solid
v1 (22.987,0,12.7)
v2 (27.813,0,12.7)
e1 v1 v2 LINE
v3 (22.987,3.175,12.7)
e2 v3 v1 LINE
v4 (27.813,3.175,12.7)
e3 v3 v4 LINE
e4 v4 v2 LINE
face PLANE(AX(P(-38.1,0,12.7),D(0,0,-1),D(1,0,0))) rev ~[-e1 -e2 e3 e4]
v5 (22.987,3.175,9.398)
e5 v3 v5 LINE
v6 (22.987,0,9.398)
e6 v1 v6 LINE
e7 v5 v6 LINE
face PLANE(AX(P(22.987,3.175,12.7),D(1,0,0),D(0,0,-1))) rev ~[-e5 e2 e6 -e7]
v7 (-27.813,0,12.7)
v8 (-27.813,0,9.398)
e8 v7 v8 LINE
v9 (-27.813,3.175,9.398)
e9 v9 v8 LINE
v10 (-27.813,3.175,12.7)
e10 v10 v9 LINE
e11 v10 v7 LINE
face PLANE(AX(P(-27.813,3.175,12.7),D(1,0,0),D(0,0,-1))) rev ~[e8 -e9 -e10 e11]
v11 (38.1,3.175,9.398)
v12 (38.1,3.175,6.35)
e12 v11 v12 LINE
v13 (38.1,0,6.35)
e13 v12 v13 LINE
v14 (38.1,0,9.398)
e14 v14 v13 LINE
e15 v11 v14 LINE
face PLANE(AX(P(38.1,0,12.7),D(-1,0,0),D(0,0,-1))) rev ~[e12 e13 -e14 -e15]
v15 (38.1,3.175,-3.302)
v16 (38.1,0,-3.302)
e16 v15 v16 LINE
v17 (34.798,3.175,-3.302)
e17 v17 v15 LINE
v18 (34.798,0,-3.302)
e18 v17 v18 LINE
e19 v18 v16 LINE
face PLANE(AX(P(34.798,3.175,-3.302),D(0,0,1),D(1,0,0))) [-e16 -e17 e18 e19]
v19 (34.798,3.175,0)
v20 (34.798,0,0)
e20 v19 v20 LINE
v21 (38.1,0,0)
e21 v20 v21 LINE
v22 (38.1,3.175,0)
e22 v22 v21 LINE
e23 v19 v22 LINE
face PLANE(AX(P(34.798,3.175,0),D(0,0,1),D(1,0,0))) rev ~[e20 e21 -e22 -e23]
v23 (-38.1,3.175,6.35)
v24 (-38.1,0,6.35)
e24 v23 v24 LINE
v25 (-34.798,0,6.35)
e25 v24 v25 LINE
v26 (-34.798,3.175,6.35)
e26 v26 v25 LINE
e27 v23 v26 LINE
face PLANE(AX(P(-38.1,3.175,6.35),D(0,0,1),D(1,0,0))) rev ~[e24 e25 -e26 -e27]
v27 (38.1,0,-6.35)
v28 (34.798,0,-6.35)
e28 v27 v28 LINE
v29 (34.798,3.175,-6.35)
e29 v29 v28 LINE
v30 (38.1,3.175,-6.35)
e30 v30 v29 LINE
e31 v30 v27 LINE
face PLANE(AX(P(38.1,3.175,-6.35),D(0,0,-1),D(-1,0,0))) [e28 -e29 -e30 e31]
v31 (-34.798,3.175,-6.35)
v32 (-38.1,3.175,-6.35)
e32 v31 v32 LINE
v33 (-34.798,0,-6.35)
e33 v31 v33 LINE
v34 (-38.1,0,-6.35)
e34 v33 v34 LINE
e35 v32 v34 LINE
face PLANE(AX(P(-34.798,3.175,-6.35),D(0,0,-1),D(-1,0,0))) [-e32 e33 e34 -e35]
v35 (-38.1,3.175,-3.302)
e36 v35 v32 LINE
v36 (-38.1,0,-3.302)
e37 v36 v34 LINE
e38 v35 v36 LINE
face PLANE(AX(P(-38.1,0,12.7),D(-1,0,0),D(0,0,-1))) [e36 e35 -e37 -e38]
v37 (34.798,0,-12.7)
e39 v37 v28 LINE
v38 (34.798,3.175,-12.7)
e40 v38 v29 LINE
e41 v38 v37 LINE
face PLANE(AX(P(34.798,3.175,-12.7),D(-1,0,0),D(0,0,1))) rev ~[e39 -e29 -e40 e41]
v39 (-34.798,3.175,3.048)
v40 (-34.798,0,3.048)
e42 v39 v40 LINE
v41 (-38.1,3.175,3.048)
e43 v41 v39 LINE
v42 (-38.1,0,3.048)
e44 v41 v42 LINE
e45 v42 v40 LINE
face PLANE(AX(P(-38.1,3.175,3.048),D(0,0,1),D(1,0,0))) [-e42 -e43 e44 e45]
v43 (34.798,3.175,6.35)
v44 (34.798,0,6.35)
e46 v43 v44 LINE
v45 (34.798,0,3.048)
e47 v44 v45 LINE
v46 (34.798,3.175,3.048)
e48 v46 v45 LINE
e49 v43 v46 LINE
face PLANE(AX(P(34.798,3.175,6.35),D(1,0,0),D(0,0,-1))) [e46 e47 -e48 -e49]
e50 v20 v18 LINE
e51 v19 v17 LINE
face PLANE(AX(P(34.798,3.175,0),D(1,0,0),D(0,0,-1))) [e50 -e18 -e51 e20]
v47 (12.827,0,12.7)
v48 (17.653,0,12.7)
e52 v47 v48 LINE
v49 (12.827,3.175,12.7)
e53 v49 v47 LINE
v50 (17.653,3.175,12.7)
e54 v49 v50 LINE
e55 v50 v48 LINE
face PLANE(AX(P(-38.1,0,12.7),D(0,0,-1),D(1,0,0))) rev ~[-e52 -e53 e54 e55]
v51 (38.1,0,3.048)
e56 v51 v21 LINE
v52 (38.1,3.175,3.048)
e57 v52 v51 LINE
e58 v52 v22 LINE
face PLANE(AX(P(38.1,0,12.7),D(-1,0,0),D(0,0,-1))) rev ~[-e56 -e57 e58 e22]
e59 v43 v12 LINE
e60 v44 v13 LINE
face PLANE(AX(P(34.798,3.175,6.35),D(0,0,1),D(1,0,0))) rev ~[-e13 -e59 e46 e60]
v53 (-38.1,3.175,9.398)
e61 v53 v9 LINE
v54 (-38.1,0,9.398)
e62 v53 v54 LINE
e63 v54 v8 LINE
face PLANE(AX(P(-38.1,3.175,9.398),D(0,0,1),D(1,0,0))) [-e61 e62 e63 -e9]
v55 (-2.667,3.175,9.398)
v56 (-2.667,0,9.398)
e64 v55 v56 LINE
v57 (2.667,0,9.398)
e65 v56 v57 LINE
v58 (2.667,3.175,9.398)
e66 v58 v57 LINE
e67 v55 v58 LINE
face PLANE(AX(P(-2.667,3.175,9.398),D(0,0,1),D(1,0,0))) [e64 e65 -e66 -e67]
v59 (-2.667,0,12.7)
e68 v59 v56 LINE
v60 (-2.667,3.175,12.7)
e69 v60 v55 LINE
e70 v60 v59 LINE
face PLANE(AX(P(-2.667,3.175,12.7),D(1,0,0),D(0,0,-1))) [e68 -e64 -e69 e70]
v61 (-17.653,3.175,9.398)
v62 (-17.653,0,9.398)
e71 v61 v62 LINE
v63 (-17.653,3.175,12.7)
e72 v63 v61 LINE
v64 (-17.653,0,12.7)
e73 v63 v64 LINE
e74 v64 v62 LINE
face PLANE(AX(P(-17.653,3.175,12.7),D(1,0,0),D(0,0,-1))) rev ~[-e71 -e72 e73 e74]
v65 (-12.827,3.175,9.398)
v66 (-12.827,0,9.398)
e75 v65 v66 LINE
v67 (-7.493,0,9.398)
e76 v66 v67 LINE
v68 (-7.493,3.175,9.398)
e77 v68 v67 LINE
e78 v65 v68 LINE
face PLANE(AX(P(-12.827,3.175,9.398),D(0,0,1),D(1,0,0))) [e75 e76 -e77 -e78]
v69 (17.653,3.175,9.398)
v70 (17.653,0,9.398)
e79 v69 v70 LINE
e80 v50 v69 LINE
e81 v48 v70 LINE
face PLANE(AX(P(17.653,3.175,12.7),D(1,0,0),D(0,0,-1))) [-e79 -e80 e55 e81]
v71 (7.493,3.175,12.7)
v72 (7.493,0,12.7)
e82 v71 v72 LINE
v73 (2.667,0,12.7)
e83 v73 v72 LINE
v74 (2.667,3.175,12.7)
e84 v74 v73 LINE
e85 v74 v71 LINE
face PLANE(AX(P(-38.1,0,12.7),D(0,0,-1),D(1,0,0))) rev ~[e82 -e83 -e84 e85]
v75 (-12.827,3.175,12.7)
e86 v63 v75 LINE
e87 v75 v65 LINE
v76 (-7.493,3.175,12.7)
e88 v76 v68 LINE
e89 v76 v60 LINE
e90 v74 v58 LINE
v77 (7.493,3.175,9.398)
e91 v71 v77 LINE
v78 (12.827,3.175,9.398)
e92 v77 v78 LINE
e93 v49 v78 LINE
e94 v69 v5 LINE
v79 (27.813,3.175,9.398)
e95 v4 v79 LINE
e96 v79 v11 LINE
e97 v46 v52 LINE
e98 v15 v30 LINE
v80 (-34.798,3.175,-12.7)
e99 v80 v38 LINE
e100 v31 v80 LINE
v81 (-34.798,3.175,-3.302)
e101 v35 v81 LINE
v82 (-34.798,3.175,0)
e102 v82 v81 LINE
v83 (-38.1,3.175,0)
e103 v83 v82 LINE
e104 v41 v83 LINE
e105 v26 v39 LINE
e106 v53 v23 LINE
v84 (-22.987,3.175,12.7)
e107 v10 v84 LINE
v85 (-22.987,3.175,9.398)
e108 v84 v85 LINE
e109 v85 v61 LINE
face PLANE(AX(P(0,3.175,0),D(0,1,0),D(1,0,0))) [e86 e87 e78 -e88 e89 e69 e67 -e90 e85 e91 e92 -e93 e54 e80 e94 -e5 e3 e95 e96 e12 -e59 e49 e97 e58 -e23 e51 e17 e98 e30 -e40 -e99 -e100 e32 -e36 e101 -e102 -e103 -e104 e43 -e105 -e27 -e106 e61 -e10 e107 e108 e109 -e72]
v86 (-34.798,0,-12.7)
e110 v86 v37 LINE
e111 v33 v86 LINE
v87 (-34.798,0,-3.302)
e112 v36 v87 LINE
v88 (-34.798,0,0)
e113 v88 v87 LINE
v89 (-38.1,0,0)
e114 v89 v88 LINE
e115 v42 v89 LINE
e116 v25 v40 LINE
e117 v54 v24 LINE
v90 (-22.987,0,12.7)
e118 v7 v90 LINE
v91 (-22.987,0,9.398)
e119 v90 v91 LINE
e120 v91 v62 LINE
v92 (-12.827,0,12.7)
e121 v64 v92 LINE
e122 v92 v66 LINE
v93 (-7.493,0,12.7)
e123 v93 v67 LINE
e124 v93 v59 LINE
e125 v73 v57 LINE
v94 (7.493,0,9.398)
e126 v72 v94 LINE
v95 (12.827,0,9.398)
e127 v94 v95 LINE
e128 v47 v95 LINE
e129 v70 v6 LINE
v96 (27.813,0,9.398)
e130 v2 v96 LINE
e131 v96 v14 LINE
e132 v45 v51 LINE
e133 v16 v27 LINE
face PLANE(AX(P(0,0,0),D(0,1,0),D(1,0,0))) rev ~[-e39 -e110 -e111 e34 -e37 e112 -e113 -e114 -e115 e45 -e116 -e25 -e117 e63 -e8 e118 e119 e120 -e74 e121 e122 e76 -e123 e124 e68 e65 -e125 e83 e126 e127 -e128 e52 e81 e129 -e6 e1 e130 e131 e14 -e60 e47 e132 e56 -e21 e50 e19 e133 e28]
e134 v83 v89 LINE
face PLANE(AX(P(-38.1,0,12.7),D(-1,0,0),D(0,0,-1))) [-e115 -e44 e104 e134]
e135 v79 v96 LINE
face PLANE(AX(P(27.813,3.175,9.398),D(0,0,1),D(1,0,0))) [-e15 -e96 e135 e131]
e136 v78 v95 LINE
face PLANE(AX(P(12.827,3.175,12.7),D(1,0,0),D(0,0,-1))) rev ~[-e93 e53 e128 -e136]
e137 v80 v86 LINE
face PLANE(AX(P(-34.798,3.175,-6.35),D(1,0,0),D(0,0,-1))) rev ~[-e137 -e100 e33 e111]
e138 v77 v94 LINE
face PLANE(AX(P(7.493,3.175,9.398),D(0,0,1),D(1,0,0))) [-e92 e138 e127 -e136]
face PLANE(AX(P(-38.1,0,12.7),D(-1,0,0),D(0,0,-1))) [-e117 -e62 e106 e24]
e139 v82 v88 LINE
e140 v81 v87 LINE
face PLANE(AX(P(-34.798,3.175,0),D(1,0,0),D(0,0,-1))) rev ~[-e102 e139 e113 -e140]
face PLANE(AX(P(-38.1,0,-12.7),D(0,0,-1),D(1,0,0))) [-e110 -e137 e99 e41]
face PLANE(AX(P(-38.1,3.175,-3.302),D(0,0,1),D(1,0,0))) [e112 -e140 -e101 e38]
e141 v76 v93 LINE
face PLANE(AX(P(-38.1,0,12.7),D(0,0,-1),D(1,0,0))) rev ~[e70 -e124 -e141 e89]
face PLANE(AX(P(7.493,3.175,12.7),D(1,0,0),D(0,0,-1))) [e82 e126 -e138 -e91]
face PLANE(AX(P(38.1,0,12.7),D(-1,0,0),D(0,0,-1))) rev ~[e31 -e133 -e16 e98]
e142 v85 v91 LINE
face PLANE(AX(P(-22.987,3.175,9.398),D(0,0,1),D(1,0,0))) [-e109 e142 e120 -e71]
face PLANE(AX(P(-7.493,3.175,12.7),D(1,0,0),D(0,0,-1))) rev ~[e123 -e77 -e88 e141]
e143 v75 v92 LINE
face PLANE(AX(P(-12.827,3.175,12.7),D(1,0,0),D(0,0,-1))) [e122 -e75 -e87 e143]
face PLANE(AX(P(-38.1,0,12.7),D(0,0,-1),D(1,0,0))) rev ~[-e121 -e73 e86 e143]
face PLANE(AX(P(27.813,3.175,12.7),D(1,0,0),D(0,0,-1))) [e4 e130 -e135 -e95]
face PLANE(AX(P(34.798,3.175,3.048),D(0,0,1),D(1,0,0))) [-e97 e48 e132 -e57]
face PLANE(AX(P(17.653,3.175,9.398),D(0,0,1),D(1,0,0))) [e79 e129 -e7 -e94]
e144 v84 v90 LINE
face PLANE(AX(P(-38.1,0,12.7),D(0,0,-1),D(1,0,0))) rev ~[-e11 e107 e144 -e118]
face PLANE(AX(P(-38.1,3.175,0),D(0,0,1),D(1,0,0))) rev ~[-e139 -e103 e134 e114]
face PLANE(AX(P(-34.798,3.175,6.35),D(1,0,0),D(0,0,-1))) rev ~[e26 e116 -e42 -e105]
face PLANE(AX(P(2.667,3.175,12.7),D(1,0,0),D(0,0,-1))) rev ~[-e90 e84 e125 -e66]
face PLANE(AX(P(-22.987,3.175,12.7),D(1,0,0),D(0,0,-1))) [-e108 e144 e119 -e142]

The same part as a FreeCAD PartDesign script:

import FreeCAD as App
import Part
import Sketcher
Q = App.Units.Quantity


def add_polygon(sketch, points):
    """Adds a closed chain of lines whose ends are joined by coincident constraints."""
    first, n = sketch.GeometryCount, len(points)
    for a, b in zip(points, points[1:] + points[:1]):
        sketch.addGeometry(Part.LineSegment(App.Vector(*a, 0), App.Vector(*b, 0)), False)
    for i in range(n):
        sketch.addConstraint(Sketcher.Constraint("Coincident", first + i, 2, first + (i + 1) % n, 1))

doc = App.newDocument("Part")
body = doc.addObject("PartDesign::Body", "Body")

# Sketch on XZ plane
sketch1 = body.newObject("Sketcher::SketchObject", "Sketch")
sketch1.AttachmentSupport = (doc.getObject("XZ_Plane"), [""])
sketch1.MapMode = "FlatFace"
add_polygon(sketch1, [(-38, -13), (-38, 13), (38, 13), (38, -13)])  # lines 0-3
sketch1.addConstraint([
    Sketcher.Constraint("Vertical", 0),
    Sketcher.Constraint("Horizontal", 1),
    Sketcher.Constraint("Vertical", 2),
    Sketcher.Constraint("Horizontal", 3),
    Sketcher.Constraint("Symmetric", 0, 2, 2, 2, -1, 1),
    Sketcher.Constraint("DistanceX", 1, 1, 1, 2, Q("3 in")),
    Sketcher.Constraint("DistanceY", 0, 1, 0, 2, Q("1 in")),
])
pad1 = body.newObject("PartDesign::Pad", "Pad")
pad1.Profile = sketch1
pad1.Length = Q("0.125 in")
pad1.Reversed = True

# Sketch on XZ plane
sketch2 = body.newObject("Sketcher::SketchObject", "Sketch001")
sketch2.AttachmentSupport = (doc.getObject("XZ_Plane"), [""])
sketch2.MapMode = "FlatFace"
sketch2.AttachmentOffset = App.Placement(App.Vector(0, 0, -0.125 * 25.4), App.Rotation())
add_polygon(sketch2, [(27.8, 9.4), (27.8, 12.7), (38.1, 12.7), (38.1, 9.4)])  # lines 0-3
add_polygon(sketch2, [(17.7, 9.4), (17.7, 12.7), (23, 12.7), (23, 9.4)])  # lines 4-7
add_polygon(sketch2, [(7.5, 9.4), (7.5, 12.7), (12.8, 12.7), (12.8, 9.4)])  # lines 8-11
add_polygon(sketch2, [(-2.7, 9.4), (-2.7, 12.7), (2.7, 12.7), (2.7, 9.4)])  # lines 12-15
add_polygon(sketch2, [(-12.8, 9.4), (-12.8, 12.7), (-7.5, 12.7), (-7.5, 9.4)])  # lines 16-19
add_polygon(sketch2, [(-23, 9.4), (-23, 12.7), (-17.7, 12.7), (-17.7, 9.4)])  # lines 20-23
add_polygon(sketch2, [(-38.1, 9.4), (-38.1, 12.7), (-27.8, 12.7), (-27.8, 9.4)])  # lines 24-27
add_polygon(sketch2, [(34.8, 3), (34.8, 6.3), (38.1, 6.3), (38.1, 3)])  # lines 28-31
add_polygon(sketch2, [(34.8, -3.3), (34.8, 0), (38.1, 0), (38.1, -3.3)])  # lines 32-35
add_polygon(sketch2, [(34.8, -6.3), (38.1, -6.3), (38.1, -12.7), (34.8, -12.7)])  # lines 36-39
add_polygon(sketch2, [(-34.8, -6.3), (-34.8, -12.7), (-38.1, -12.7), (-38.1, -6.3)])  # lines 40-43
add_polygon(sketch2, [(-38.1, -3.3), (-38.1, 0), (-34.8, 0), (-34.8, -3.3)])  # lines 44-47
add_polygon(sketch2, [(-38.1, 3), (-38.1, 6.3), (-34.8, 6.3), (-34.8, 3)])  # lines 48-51
sketch2.addConstraint([
    Sketcher.Constraint("Vertical", 0),
    Sketcher.Constraint("Horizontal", 1),
    Sketcher.Constraint("Vertical", 2),
    Sketcher.Constraint("Horizontal", 3),
    Sketcher.Constraint("Vertical", 4),
    Sketcher.Constraint("Horizontal", 5),
    Sketcher.Constraint("Vertical", 6),
    Sketcher.Constraint("Horizontal", 7),
    Sketcher.Constraint("Vertical", 8),
    Sketcher.Constraint("Horizontal", 9),
    Sketcher.Constraint("Vertical", 10),
    Sketcher.Constraint("Horizontal", 11),
    Sketcher.Constraint("Vertical", 12),
    Sketcher.Constraint("Horizontal", 13),
    Sketcher.Constraint("Vertical", 14),
    Sketcher.Constraint("Horizontal", 15),
    Sketcher.Constraint("Vertical", 16),
    Sketcher.Constraint("Horizontal", 17),
    Sketcher.Constraint("Vertical", 18),
    Sketcher.Constraint("Horizontal", 19),
    Sketcher.Constraint("Vertical", 20),
    Sketcher.Constraint("Horizontal", 21),
    Sketcher.Constraint("Vertical", 22),
    Sketcher.Constraint("Horizontal", 23),
    Sketcher.Constraint("Vertical", 24),
    Sketcher.Constraint("Horizontal", 25),
    Sketcher.Constraint("Vertical", 26),
    Sketcher.Constraint("Horizontal", 27),
    Sketcher.Constraint("Vertical", 28),
    Sketcher.Constraint("Horizontal", 29),
    Sketcher.Constraint("Vertical", 30),
    Sketcher.Constraint("Horizontal", 31),
    Sketcher.Constraint("Vertical", 32),
    Sketcher.Constraint("Horizontal", 33),
    Sketcher.Constraint("Vertical", 34),
    Sketcher.Constraint("Horizontal", 35),
    Sketcher.Constraint("Horizontal", 36),
    Sketcher.Constraint("Vertical", 37),
    Sketcher.Constraint("Horizontal", 38),
    Sketcher.Constraint("Vertical", 39),
    Sketcher.Constraint("Vertical", 40),
    Sketcher.Constraint("Horizontal", 41),
    Sketcher.Constraint("Vertical", 42),
    Sketcher.Constraint("Horizontal", 43),
    Sketcher.Constraint("Vertical", 44),
    Sketcher.Constraint("Horizontal", 45),
    Sketcher.Constraint("Vertical", 46),
    Sketcher.Constraint("Horizontal", 47),
    Sketcher.Constraint("Vertical", 48),
    Sketcher.Constraint("Horizontal", 49),
    Sketcher.Constraint("Vertical", 50),
    Sketcher.Constraint("Horizontal", 51),
    Sketcher.Constraint("Symmetric", 24, 2, 37, 2, -1, 1),
    Sketcher.Constraint("Symmetric", 1, 2, 41, 2, -1, 1),
    Sketcher.Constraint("Symmetric", 29, 2, 42, 2, -1, 1),
    Sketcher.Constraint("Symmetric", 33, 2, 44, 2, -1, 1),
    Sketcher.Constraint("Symmetric", 36, 2, 48, 2, -1, 1),
    Sketcher.Constraint("Symmetric", 9, 2, 16, 2, -2),
    Sketcher.Constraint("Symmetric", 11, 2, 18, 2, -2),
    Sketcher.Constraint("Symmetric", 5, 2, 20, 2, -2),
    Sketcher.Constraint("Symmetric", 7, 2, 22, 2, -2),
    Sketcher.Constraint("Symmetric", 1, 2, 24, 2, -2),
    Sketcher.Constraint("Symmetric", 3, 2, 26, 2, -2),
    Sketcher.Constraint("Symmetric", 39, 2, 43, 2, -2),
    Sketcher.Constraint("Symmetric", 32, 2, 45, 2, -2),
    Sketcher.Constraint("Symmetric", 31, 2, 50, 2, -2),
    Sketcher.Constraint("Horizontal", 1, 2, 4, 2),
    Sketcher.Constraint("Horizontal", 3, 2, 6, 2),
    Sketcher.Constraint("Horizontal", 5, 2, 8, 2),
    Sketcher.Constraint("Horizontal", 7, 2, 10, 2),
    Sketcher.Constraint("Horizontal", 9, 2, 12, 2),
    Sketcher.Constraint("Horizontal", 11, 2, 14, 2),
    Sketcher.Constraint("Horizontal", 35, 2, 46, 2),
    Sketcher.Constraint("Vertical", 31, 2, 32, 2),
    Sketcher.Constraint("Vertical", 30, 2, 33, 2),
    Sketcher.Constraint("Vertical", 35, 2, 38, 2),
    Sketcher.Constraint("Equal", 7, 9),
    Sketcher.Constraint("Equal", 11, 13),
    Sketcher.Constraint("Equal", 51, 0),
    Sketcher.Constraint("Equal", 26, 28),
    Sketcher.Constraint("Equal", 30, 32),
    Sketcher.Constraint("DistanceY", 40, 2, 24, 2, Q("1 in")),
    Sketcher.Constraint("DistanceX", 5, 1, 5, 2, Q("0.21 in")),
    Sketcher.Constraint("DistanceX", 29, 1, 29, 2, Q("0.13 in")),
    Sketcher.Constraint("DistanceY", 37, 2, 37, 1, Q("0.25 in")),
    Sketcher.Constraint("DistanceX", -1, 1, 1, 2, Q("1.5 in")),
    Sketcher.Constraint("DistanceX", 4, 2, 0, 2, Q("0.4 in")),
    Sketcher.Constraint("DistanceX", 8, 2, 4, 2, Q("0.4 in")),
    Sketcher.Constraint("DistanceX", 12, 2, 8, 2, Q("0.4 in")),
    Sketcher.Constraint("DistanceX", 16, 2, 12, 2, Q("0.4 in")),
])
pocket1 = body.newObject("PartDesign::Pocket", "Pocket")
pocket1.Profile = sketch2
pocket1.Type = "ThroughAll"
pocket1.Reversed = True

doc.recompute()
